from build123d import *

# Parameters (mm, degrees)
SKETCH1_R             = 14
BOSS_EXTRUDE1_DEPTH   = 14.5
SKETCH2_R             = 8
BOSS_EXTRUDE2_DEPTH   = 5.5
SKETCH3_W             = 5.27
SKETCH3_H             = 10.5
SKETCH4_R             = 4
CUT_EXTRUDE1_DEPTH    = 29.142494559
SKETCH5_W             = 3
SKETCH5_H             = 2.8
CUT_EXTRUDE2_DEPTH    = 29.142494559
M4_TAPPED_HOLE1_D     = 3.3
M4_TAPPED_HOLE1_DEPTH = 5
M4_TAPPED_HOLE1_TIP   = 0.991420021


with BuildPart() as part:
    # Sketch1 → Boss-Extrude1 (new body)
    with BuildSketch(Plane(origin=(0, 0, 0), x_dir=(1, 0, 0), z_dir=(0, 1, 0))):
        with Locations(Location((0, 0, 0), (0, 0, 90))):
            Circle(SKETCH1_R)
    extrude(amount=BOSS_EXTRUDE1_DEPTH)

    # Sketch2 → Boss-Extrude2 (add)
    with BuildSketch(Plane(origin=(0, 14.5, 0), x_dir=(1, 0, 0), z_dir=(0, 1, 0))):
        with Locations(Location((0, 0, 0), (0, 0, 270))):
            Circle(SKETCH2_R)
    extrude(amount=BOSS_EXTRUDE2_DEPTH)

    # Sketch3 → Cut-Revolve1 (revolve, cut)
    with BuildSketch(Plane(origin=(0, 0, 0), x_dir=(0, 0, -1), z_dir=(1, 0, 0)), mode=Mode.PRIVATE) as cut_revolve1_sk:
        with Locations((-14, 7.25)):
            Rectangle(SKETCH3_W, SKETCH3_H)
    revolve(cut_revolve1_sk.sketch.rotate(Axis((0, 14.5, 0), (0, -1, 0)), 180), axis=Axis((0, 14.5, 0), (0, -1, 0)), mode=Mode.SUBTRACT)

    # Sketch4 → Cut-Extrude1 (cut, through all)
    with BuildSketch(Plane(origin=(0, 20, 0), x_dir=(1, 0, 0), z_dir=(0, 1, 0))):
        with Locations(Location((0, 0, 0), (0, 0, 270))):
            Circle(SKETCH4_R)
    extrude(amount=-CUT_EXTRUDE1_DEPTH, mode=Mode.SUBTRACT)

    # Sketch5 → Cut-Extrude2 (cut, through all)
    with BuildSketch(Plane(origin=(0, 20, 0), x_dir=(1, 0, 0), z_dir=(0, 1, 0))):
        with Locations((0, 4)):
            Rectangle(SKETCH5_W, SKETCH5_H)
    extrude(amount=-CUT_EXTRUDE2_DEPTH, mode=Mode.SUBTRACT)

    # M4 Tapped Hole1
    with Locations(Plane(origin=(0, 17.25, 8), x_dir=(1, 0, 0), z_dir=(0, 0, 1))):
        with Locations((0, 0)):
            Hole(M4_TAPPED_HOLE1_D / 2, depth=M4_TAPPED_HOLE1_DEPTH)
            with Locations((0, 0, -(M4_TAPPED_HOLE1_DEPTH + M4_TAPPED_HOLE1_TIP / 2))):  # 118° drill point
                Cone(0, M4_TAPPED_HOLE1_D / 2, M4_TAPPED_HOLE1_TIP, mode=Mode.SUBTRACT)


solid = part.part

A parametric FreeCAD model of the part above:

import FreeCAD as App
import Part
import Sketcher

V = App.Vector
Q = App.Units.Quantity


def add_polygon(sketch, points):
    """Adds a closed chain of lines whose ends are joined by coincident constraints."""
    first, n = sketch.GeometryCount, len(points)
    for a, b in zip(points, points[1:] + points[:1]):
        sketch.addGeometry(Part.LineSegment(App.Vector(*a, 0), App.Vector(*b, 0)), False)
    for i in range(n):
        sketch.addConstraint(Sketcher.Constraint("Coincident", first + i, 2, first + (i + 1) % n, 1))

doc = App.newDocument("Part")
body = doc.addObject("PartDesign::Body", "Body")

# Sketch on XZ plane
sketch1 = body.newObject("Sketcher::SketchObject", "Sketch")
sketch1.AttachmentSupport = (doc.getObject("XZ_Plane"), [""])
sketch1.MapMode = "FlatFace"
sketch1.addGeometry(Part.Circle(V(0, 0, 0), V(0, 0, 1), 14), False)
sketch1.addConstraint([
    Sketcher.Constraint("Coincident", 0, 3, -1, 1),
    Sketcher.Constraint("Diameter", 0, Q("28 mm")),
])
pad1 = body.newObject("PartDesign::Pad", "Pad")
pad1.Profile = sketch1
pad1.Length = 14.5
pad1.Reversed = True

# Sketch on XZ plane
sketch2 = body.newObject("Sketcher::SketchObject", "Sketch001")
sketch2.AttachmentSupport = (doc.getObject("XZ_Plane"), [""])
sketch2.MapMode = "FlatFace"
sketch2.AttachmentOffset = App.Placement(V(0, 0, -14.5), App.Rotation())
sketch2.addGeometry(Part.Circle(V(0, 0, 0), V(0, 0, 1), 8), False)
sketch2.addConstraint([
    Sketcher.Constraint("Coincident", 0, 3, -1, 1),
    Sketcher.Constraint("Diameter", 0, Q("16 mm")),
])
pad2 = body.newObject("PartDesign::Pad", "Pad001")
pad2.Profile = sketch2
pad2.Length = 5.5
pad2.Reversed = True

# Sketch on YZ plane
sketch3 = body.newObject("Sketcher::SketchObject", "Sketch002")
sketch3.AttachmentSupport = (doc.getObject("YZ_Plane"), [""])
sketch3.MapMode = "FlatFace"
add_polygon(sketch3, [(12, 17), (2, 17), (2, 11), (12, 11)])  # lines 0-3
sketch3.addConstraint([
    Sketcher.Constraint("Horizontal", 0),
    Sketcher.Constraint("Vertical", 1),
    Sketcher.Constraint("Horizontal", 2),
    Sketcher.Constraint("Vertical", 3),
    Sketcher.Constraint("DistanceX", 0, 2, 0, 1, Q("10.5 mm")),
    Sketcher.Constraint("DistanceX", -1, 1, 0, 2, Q("2 mm")),
    Sketcher.Constraint("DistanceY", 1, 2, 1, 1, Q("5.27 mm")),
    Sketcher.Constraint("DistanceY", -1, 1, 0, 2, Q("16.635 mm")),
])
groove = body.newObject("PartDesign::Groove", "Groove")
groove.Profile = sketch3
groove.ReferenceAxis = (sketch3, ["H_Axis"])
groove.Angle = 360

# Sketch on XZ plane
sketch4 = body.newObject("Sketcher::SketchObject", "Sketch003")
sketch4.AttachmentSupport = (doc.getObject("XZ_Plane"), [""])
sketch4.MapMode = "FlatFace"
sketch4.AttachmentOffset = App.Placement(V(0, 0, -20), App.Rotation())
sketch4.addGeometry(Part.Circle(V(0, 0, 0), V(0, 0, 1), 4), False)
sketch4.addConstraint([
    Sketcher.Constraint("Coincident", 0, 3, -1, 1),
    Sketcher.Constraint("Diameter", 0, Q("8 mm")),
])
pocket1 = body.newObject("PartDesign::Pocket", "Pocket")
pocket1.Profile = sketch4
pocket1.Type = "ThroughAll"
pocket1.Reversed = True

# Sketch on XZ plane
sketch5 = body.newObject("Sketcher::SketchObject", "Sketch004")
sketch5.AttachmentSupport = (doc.getObject("XZ_Plane"), [""])
sketch5.MapMode = "FlatFace"
sketch5.AttachmentOffset = App.Placement(V(0, 0, -20), App.Rotation())
add_polygon(sketch5, [(-1.5, -5.4), (-1.5, -2.6), (1.5, -2.6), (1.5, -5.4)])  # lines 0-3
sketch5.addConstraint([
    Sketcher.Constraint("Vertical", 0),
    Sketcher.Constraint("Horizontal", 1),
    Sketcher.Constraint("Vertical", 2),
    Sketcher.Constraint("Horizontal", 3),
    Sketcher.Constraint("DistanceX", 1, 1, 1, 2, Q("3 mm")),
    Sketcher.Constraint("DistanceY", 0, 1, 0, 2, Q("2.8 mm")),
    Sketcher.Constraint("DistanceX", 0, 2, -1, 1, Q("1.5 mm")),
    Sketcher.Constraint("DistanceY", 0, 2, -1, 1, Q("2.6 mm")),
])
pocket2 = body.newObject("PartDesign::Pocket", "Pocket001")
pocket2.Profile = sketch5
pocket2.Type = "ThroughAll"
pocket2.Reversed = True

# Sketch on XY plane
sketch6 = body.newObject("Sketcher::SketchObject", "Sketch005")
sketch6.AttachmentSupport = (doc.getObject("XY_Plane"), [""])
sketch6.MapMode = "FlatFace"
sketch6.AttachmentOffset = App.Placement(V(0, 0, 8), App.Rotation())
sketch6.addGeometry(Part.Circle(V(0, 17.2, 0), V(0, 0, 1), 1.6), False)
sketch6.addConstraint([
    Sketcher.Constraint("PointOnObject", 0, 3, -2),
    Sketcher.Constraint("Diameter", 0, Q("3.3 mm")),
    Sketcher.Constraint("DistanceY", -1, 1, 0, 3, Q("17.25 mm")),
])
doc.recompute()
hole = body.newObject("PartDesign::Hole", "Hole")
hole.Profile = sketch6
hole.ThreadType = "None"
hole.Diameter = 3.3
hole.DepthType = "Dimension"
hole.Depth = 5
hole.DrillPoint = "Angled"
hole.DrillPointAngle = 118

doc.recompute()
